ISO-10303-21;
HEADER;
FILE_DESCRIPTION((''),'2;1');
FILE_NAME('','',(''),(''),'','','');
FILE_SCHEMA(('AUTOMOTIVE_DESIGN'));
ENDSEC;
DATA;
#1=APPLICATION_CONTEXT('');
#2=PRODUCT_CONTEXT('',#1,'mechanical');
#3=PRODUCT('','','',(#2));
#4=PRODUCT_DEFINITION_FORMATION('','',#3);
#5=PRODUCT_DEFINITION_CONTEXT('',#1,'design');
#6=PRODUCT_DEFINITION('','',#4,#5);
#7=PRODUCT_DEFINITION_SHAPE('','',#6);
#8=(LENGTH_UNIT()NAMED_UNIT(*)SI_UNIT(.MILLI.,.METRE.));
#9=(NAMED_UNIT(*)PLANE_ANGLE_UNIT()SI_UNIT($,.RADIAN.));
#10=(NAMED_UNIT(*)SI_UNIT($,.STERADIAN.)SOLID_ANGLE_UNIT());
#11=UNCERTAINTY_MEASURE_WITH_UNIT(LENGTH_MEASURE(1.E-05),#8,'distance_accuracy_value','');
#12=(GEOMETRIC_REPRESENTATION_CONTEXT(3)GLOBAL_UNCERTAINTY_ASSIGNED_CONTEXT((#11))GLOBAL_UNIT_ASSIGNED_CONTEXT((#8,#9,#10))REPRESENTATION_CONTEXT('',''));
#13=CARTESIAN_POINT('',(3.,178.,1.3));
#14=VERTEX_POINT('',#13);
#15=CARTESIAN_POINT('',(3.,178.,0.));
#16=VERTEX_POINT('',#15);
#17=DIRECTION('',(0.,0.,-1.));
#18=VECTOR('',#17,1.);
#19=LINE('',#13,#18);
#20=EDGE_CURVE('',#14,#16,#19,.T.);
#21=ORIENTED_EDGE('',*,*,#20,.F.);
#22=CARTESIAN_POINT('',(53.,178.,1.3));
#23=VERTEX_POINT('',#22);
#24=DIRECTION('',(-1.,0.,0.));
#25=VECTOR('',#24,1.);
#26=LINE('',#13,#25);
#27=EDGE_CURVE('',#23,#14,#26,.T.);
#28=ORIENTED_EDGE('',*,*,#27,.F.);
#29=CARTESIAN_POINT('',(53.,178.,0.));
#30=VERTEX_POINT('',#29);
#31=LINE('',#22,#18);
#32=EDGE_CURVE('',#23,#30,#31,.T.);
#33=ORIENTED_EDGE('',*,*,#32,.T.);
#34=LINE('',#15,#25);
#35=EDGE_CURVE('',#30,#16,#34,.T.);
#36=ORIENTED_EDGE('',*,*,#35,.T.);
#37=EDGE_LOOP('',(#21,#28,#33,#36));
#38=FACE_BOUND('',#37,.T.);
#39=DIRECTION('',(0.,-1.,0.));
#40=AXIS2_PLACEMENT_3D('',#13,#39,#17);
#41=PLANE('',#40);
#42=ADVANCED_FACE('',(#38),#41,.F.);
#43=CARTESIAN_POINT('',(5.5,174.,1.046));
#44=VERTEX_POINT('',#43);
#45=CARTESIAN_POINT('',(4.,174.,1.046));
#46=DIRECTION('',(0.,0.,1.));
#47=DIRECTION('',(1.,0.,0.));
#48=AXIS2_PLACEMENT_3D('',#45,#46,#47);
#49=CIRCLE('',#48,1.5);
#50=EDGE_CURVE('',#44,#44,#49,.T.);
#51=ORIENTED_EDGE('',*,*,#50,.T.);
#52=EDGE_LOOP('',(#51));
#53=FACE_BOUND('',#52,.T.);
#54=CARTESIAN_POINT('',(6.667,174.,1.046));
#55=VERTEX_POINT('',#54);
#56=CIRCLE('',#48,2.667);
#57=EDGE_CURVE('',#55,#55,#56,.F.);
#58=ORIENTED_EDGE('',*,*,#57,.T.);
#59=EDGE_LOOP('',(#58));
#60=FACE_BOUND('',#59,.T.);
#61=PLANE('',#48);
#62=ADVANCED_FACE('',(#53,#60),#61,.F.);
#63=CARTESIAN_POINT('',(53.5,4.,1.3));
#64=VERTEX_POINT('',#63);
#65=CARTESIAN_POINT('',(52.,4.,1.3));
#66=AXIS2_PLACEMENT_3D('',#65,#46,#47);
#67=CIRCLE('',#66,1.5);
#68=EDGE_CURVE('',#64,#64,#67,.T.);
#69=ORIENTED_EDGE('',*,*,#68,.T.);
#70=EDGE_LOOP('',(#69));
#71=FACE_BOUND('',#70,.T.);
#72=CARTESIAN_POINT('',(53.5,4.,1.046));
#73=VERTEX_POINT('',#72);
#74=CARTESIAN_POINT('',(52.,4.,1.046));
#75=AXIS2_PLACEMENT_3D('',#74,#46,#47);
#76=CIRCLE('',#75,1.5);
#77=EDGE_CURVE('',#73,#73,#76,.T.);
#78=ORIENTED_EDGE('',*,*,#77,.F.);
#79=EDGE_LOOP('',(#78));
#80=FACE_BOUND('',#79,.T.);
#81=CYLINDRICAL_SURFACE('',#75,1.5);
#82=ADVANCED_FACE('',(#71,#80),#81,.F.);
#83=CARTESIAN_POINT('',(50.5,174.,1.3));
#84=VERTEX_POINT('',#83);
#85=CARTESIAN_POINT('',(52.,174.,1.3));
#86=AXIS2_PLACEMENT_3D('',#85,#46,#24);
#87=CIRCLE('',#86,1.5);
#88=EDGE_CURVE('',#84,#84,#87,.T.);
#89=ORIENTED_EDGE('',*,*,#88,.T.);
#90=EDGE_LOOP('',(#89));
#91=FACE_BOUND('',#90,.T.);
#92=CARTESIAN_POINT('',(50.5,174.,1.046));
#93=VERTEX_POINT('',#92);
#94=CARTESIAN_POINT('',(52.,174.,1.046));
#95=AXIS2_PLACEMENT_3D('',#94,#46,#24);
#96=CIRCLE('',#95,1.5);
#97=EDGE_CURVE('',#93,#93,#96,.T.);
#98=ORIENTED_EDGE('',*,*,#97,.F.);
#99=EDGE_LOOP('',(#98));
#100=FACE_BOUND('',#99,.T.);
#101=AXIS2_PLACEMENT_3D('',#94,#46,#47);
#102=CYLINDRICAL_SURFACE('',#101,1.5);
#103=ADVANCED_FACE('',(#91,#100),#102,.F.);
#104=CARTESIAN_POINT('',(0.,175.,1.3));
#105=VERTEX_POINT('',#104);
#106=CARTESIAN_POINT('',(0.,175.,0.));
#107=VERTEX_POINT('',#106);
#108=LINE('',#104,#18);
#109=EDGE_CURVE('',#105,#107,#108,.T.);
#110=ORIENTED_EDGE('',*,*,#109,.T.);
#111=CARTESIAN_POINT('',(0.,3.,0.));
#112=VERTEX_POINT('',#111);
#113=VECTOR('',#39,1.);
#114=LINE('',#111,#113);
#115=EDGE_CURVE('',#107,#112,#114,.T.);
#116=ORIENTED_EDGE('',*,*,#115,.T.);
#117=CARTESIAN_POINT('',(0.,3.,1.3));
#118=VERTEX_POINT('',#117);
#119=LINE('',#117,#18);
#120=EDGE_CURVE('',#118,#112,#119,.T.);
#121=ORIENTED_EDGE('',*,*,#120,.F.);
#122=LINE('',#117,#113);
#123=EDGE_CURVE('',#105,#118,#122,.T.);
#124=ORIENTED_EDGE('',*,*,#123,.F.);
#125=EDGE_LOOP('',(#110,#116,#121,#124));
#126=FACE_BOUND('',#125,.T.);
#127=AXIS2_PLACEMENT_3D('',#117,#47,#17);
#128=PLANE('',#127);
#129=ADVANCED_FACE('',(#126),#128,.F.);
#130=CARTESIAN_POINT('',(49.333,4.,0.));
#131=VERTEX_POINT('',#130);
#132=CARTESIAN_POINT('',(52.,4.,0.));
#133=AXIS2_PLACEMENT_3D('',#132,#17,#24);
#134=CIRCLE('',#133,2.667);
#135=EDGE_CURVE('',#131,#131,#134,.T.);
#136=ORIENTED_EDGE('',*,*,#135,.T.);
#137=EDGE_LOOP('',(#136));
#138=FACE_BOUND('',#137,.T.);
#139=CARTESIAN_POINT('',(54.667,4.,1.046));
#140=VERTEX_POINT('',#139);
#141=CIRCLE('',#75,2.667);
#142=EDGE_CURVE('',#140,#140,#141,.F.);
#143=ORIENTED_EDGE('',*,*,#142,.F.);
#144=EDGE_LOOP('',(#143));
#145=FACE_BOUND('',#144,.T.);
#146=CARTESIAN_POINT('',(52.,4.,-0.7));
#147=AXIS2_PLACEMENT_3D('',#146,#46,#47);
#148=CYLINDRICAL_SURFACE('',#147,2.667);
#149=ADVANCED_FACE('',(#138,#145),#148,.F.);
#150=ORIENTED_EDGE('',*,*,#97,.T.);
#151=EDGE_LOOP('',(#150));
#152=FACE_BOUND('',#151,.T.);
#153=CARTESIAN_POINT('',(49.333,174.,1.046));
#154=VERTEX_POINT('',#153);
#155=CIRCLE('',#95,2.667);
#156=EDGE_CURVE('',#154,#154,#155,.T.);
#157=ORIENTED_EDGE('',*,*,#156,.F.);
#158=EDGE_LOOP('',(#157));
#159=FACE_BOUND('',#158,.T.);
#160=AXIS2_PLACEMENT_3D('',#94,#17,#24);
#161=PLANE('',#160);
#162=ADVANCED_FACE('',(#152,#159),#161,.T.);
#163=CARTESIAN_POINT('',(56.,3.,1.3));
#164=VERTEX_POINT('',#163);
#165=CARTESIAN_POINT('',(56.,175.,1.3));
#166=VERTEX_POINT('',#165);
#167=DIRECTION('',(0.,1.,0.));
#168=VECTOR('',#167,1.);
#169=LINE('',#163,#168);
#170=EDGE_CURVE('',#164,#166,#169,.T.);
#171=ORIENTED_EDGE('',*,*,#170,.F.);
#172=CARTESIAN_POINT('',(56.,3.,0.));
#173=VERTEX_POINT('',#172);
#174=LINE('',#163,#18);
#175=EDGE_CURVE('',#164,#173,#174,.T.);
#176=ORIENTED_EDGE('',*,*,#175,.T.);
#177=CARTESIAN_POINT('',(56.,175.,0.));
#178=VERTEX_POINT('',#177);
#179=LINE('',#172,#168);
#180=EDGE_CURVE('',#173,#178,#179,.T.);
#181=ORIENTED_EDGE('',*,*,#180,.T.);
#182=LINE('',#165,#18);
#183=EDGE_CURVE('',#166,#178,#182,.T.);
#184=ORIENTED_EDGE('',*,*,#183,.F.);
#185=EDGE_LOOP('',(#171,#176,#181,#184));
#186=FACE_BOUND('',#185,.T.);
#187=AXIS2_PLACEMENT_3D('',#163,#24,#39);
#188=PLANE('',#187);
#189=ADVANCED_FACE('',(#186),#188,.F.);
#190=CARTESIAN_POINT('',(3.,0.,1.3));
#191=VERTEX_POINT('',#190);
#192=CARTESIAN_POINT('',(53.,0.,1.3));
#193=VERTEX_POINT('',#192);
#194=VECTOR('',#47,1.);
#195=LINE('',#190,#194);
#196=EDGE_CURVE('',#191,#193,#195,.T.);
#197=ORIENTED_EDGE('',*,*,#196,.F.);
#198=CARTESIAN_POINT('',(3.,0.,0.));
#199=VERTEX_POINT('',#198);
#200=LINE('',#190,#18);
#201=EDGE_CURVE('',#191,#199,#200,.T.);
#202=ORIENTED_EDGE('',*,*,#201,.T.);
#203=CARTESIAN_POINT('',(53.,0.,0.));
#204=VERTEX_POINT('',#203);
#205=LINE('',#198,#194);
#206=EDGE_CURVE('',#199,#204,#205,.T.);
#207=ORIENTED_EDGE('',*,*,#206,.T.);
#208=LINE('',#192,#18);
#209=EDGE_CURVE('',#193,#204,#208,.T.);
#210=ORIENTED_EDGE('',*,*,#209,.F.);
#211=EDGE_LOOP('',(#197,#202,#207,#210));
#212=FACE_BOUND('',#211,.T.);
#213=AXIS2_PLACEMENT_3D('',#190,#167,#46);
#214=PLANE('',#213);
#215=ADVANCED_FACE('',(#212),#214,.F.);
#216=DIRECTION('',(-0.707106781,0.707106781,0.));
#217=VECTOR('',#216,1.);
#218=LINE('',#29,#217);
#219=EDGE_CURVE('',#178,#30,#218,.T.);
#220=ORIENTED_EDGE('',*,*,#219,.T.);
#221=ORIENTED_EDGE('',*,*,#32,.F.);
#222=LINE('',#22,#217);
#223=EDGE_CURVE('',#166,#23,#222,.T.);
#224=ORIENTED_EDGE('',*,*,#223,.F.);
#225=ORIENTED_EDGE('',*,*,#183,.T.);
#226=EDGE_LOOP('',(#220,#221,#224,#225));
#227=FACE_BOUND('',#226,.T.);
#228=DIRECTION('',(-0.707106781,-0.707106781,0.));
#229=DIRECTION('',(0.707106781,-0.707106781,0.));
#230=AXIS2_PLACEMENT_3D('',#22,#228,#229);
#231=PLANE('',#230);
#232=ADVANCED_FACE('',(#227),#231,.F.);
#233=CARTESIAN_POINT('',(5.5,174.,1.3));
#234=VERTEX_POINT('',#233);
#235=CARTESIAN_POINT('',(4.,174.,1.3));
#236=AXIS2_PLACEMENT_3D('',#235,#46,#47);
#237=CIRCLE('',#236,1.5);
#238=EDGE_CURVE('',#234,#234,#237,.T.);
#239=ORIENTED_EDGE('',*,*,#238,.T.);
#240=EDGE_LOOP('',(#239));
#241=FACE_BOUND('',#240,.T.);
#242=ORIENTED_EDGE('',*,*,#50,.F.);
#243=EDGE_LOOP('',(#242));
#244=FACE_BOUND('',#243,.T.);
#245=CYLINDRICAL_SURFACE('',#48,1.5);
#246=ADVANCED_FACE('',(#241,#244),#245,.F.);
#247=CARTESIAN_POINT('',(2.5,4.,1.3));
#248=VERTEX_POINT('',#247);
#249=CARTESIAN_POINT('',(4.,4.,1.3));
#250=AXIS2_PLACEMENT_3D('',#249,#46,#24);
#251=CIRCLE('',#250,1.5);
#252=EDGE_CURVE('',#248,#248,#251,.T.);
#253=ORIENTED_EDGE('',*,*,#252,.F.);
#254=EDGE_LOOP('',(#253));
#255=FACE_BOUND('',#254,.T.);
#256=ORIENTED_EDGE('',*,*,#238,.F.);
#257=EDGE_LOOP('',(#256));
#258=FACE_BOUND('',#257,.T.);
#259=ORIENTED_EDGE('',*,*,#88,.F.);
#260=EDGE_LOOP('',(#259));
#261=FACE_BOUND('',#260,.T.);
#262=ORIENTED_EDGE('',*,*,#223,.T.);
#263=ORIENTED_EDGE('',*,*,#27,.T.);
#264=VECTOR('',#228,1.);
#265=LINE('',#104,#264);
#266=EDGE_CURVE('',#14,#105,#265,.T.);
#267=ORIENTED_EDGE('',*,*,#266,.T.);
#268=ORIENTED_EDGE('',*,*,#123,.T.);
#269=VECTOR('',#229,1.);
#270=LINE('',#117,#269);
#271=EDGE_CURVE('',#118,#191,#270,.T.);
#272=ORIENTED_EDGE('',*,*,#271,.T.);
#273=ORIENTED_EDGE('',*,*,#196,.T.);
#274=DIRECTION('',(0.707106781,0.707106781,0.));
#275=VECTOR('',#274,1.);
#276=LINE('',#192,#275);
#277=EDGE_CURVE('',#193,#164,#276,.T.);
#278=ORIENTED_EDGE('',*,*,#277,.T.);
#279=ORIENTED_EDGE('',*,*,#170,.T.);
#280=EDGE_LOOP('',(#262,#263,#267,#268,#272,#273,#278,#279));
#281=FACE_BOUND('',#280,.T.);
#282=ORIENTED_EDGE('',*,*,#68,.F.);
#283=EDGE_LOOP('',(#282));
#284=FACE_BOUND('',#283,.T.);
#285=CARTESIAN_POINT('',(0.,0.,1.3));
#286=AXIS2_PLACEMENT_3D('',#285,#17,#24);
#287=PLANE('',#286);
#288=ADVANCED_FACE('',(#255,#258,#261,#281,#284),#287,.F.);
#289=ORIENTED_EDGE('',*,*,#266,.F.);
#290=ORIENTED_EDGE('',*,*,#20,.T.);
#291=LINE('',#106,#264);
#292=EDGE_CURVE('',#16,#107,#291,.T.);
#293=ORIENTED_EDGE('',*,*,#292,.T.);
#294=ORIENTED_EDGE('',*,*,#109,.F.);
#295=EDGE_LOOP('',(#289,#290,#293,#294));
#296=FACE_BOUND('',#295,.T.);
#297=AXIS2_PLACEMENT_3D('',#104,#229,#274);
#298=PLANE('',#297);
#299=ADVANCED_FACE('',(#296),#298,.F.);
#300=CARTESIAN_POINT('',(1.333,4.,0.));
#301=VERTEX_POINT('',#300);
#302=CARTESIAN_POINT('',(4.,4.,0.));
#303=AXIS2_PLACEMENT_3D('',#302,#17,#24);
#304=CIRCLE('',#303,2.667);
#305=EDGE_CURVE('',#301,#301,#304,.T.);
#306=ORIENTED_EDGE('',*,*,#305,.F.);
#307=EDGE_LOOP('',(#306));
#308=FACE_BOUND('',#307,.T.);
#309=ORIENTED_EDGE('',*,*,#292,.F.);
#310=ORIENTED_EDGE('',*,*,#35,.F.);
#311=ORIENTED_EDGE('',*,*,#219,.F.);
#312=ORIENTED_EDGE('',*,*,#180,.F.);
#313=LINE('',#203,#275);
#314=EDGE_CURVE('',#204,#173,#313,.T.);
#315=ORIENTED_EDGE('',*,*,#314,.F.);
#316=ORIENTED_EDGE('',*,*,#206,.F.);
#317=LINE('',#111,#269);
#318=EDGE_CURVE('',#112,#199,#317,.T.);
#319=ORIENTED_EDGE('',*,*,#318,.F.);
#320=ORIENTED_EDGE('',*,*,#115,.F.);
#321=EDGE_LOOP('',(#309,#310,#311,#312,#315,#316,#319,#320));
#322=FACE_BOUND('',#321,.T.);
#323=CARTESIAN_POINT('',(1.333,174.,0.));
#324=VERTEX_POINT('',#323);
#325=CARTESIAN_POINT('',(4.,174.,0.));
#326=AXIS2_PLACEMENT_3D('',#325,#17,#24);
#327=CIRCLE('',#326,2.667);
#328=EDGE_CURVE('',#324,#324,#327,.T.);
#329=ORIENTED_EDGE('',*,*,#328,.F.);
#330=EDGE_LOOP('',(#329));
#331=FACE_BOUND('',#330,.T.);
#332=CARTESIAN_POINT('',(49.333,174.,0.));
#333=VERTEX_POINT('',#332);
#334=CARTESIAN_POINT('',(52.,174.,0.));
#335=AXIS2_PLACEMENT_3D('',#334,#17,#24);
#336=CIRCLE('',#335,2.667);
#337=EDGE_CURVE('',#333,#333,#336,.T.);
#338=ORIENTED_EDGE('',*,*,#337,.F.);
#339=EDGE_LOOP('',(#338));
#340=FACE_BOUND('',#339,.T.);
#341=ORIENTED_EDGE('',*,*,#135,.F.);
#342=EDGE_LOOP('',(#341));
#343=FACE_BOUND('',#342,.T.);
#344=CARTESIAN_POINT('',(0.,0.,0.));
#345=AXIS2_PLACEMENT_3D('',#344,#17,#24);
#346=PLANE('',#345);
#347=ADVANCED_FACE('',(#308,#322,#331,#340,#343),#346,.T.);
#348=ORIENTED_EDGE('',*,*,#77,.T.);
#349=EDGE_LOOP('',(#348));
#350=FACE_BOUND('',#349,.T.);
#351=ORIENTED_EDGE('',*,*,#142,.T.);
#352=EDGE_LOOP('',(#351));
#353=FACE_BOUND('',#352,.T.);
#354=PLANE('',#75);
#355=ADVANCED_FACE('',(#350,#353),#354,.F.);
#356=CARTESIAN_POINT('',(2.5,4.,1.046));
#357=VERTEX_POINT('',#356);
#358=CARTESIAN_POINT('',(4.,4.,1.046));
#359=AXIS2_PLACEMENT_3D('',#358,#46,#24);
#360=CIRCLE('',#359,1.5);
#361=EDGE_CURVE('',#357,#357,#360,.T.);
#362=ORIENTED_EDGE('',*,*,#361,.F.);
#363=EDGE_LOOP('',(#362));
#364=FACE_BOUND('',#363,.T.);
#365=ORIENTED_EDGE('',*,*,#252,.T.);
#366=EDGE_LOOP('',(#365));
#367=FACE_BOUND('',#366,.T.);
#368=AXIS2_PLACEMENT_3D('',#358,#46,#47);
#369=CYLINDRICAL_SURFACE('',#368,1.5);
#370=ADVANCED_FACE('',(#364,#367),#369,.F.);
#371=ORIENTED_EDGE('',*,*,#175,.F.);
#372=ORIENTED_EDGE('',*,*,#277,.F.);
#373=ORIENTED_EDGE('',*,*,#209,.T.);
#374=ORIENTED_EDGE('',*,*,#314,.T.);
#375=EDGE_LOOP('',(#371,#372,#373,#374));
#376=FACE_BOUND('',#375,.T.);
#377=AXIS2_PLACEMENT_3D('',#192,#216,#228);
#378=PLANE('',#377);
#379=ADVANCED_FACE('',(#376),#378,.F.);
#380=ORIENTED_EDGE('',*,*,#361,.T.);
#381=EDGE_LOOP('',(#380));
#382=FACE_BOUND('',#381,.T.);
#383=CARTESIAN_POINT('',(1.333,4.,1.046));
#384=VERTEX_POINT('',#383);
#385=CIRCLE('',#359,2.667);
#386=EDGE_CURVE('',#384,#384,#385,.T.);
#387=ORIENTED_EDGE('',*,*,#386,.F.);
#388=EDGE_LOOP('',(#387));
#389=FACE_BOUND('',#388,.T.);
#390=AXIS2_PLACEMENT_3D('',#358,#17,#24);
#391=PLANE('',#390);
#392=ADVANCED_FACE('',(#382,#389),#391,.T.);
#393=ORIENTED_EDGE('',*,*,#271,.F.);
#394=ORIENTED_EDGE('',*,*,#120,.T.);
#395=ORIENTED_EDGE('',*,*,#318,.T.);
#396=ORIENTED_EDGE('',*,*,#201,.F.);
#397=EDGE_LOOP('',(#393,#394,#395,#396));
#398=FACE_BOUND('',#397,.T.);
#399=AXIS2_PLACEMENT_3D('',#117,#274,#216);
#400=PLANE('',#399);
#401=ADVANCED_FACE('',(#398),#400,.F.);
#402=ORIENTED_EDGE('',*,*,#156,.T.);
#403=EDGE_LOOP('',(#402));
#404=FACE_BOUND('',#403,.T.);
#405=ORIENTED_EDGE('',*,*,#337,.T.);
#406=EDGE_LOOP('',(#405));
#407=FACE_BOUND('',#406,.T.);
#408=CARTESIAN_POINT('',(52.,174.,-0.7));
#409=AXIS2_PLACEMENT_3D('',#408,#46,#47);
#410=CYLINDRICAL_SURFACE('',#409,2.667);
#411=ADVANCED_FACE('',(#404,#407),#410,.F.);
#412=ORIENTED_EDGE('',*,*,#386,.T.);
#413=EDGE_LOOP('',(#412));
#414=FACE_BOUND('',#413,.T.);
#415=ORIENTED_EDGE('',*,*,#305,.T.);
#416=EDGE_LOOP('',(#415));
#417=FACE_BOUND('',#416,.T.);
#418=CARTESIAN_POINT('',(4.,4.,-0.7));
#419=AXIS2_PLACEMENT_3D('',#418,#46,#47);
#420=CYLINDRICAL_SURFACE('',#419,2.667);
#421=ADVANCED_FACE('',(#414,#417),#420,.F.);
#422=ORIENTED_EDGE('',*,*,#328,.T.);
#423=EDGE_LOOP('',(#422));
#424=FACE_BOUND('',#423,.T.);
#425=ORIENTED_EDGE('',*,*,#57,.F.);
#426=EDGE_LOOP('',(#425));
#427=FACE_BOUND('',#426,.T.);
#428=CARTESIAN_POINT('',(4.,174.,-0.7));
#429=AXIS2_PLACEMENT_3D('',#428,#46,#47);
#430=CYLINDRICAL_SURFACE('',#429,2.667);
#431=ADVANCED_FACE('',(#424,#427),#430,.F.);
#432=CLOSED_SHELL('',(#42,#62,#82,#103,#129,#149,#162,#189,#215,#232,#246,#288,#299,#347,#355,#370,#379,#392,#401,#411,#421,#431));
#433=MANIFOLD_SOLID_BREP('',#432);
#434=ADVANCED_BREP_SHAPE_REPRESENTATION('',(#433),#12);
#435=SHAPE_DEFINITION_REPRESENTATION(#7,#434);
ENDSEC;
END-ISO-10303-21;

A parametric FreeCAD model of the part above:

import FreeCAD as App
import Part
import Sketcher

doc = App.newDocument("Part")
body = doc.addObject("PartDesign::Body", "Body")

# Sketch on XY plane
sketch1 = body.newObject("Sketcher::SketchObject", "Sketch")
sketch1.AttachmentSupport = (doc.getObject("XY_Plane"), [""])
sketch1.MapMode = "FlatFace"
sketch1.addGeometry([
    Part.LineSegment(App.Vector(3, 178, 0), App.Vector(0, 175, 0)),  # 0
    Part.LineSegment(App.Vector(0, 175, 0), App.Vector(0, 3, 0)),  # 1
    Part.LineSegment(App.Vector(0, 3, 0), App.Vector(3, 0, 0)),  # 2
    Part.LineSegment(App.Vector(3, 0, 0), App.Vector(53, 0, 0)),  # 3
    Part.LineSegment(App.Vector(53, 0, 0), App.Vector(56, 3, 0)),  # 4
    Part.LineSegment(App.Vector(56, 3, 0), App.Vector(56, 175, 0)),  # 5
    Part.LineSegment(App.Vector(56, 175, 0), App.Vector(53, 178, 0)),  # 6
    Part.LineSegment(App.Vector(53, 178, 0), App.Vector(3, 178, 0)),  # 7
], False)
sketch1.addConstraint([
    Sketcher.Constraint("Coincident", 0, 2, 1, 1),
    Sketcher.Constraint("Coincident", 1, 2, 2, 1),
    Sketcher.Constraint("Coincident", 2, 2, 3, 1),
    Sketcher.Constraint("Coincident", 3, 2, 4, 1),
    Sketcher.Constraint("Coincident", 4, 2, 5, 1),
    Sketcher.Constraint("Coincident", 5, 2, 6, 1),
    Sketcher.Constraint("Coincident", 6, 2, 7, 1),
    Sketcher.Constraint("Coincident", 7, 2, 0, 1),
    Sketcher.Constraint("Vertical", 1),
    Sketcher.Constraint("Horizontal", 3),
    Sketcher.Constraint("Vertical", 5),
    Sketcher.Constraint("Horizontal", 7),
    Sketcher.Constraint("PointOnObject", 0, 2, -2),
    Sketcher.Constraint("PointOnObject", 2, 2, -1),
    Sketcher.Constraint("Perpendicular", 0, 2),
    Sketcher.Constraint("Perpendicular", 2, 4),
    Sketcher.Constraint("Perpendicular", 4, 6),
    Sketcher.Constraint("Horizontal", 1, 2, 4, 2),
    Sketcher.Constraint("Horizontal", 0, 2, 5, 2),
    Sketcher.Constraint("Vertical", 3, 2, 6, 2),
    Sketcher.Constraint("Vertical", 2, 2, 7, 2),
    Sketcher.Constraint("DistanceX", 3, 1, 3, 2, 50.0),
    Sketcher.Constraint("DistanceY", 1, 2, 1, 1, 172.0),
    Sketcher.Constraint("DistanceY", -1, 1, 0, 2, 175.0),
])
pad1 = body.newObject("PartDesign::Pad", "Pad")
pad1.Profile = sketch1
pad1.Length = 1.3

# Sketch on XY plane
sketch2 = body.newObject("Sketcher::SketchObject", "Sketch001")
sketch2.AttachmentSupport = (doc.getObject("XY_Plane"), [""])
sketch2.MapMode = "FlatFace"
sketch2.AttachmentOffset = App.Placement(App.Vector(0, 0, 1.3), App.Rotation())
sketch2.addGeometry([
    Part.Circle(App.Vector(4, 174, 0), App.Vector(0, 0, 1), 2.7),
    Part.Circle(App.Vector(52, 174, 0), App.Vector(0, 0, 1), 2.7),
    Part.Circle(App.Vector(52, 4, 0), App.Vector(0, 0, 1), 2.7),
    Part.Circle(App.Vector(4, 4, 0), App.Vector(0, 0, 1), 2.7),
], False)
sketch2.addConstraint([
    Sketcher.Constraint("Equal", 0, 1),
    Sketcher.Constraint("Equal", 1, 2),
    Sketcher.Constraint("Equal", 2, 3),
    Sketcher.Constraint("Horizontal", 0, 3, 1, 3),
    Sketcher.Constraint("Horizontal", 2, 3, 3, 3),
    Sketcher.Constraint("Vertical", 1, 3, 2, 3),
    Sketcher.Constraint("Vertical", 0, 3, 3, 3),
    Sketcher.Constraint("Diameter", 0, 5.334),
    Sketcher.Constraint("DistanceX", -1, 1, 0, 3, 4.0),
    Sketcher.Constraint("DistanceY", -1, 1, 0, 3, 174.0),
    Sketcher.Constraint("DistanceX", -1, 1, 1, 3, 52.0),
    Sketcher.Constraint("DistanceY", -1, 1, 2, 3, 4.0),
])
pocket1 = body.newObject("PartDesign::Pocket", "Pocket")
pocket1.Profile = sketch2
pocket1.Length = 2

# Sketch on XY plane
sketch3 = body.newObject("Sketcher::SketchObject", "Sketch002")
sketch3.AttachmentSupport = (doc.getObject("XY_Plane"), [""])
sketch3.MapMode = "FlatFace"
sketch3.AttachmentOffset = App.Placement(App.Vector(0, 0, 1.3), App.Rotation())
sketch3.addGeometry([
    Part.Circle(App.Vector(4, 174, 0), App.Vector(0, 0, 1), 2.7),  # 0
    Part.Circle(App.Vector(4, 174, 0), App.Vector(0, 0, 1), 1.5),  # 1
    Part.Circle(App.Vector(52, 174, 0), App.Vector(0, 0, 1), 2.7),  # 2
    Part.Circle(App.Vector(52, 174, 0), App.Vector(0, 0, 1), 1.5),  # 3
    Part.Circle(App.Vector(52, 4, 0), App.Vector(0, 0, 1), 2.7),  # 4
    Part.Circle(App.Vector(52, 4, 0), App.Vector(0, 0, 1), 1.5),  # 5
    Part.Circle(App.Vector(4, 4, 0), App.Vector(0, 0, 1), 2.7),  # 6
    Part.Circle(App.Vector(4, 4, 0), App.Vector(0, 0, 1), 1.5),  # 7
], False)
sketch3.addConstraint([
    Sketcher.Constraint("Coincident", 1, 3, 0, 3),
    Sketcher.Constraint("Coincident", 3, 3, 2, 3),
    Sketcher.Constraint("Coincident", 5, 3, 4, 3),
    Sketcher.Constraint("Coincident", 7, 3, 6, 3),
    Sketcher.Constraint("Equal", 0, 2),
    Sketcher.Constraint("Equal", 1, 3),
    Sketcher.Constraint("Equal", 2, 4),
    Sketcher.Constraint("Equal", 3, 5),
    Sketcher.Constraint("Equal", 4, 6),
    Sketcher.Constraint("Equal", 5, 7),
    Sketcher.Constraint("Horizontal", 1, 3, 2, 3),
    Sketcher.Constraint("Horizontal", 5, 3, 6, 3),
    Sketcher.Constraint("Vertical", 3, 3, 4, 3),
    Sketcher.Constraint("Vertical", 1, 3, 6, 3),
    Sketcher.Constraint("Diameter", 1, 3.0),
    Sketcher.Constraint("Diameter", 0, 5.334),
    Sketcher.Constraint("DistanceX", -1, 1, 0, 3, 4.0),
    Sketcher.Constraint("DistanceY", -1, 1, 0, 3, 174.0),
    Sketcher.Constraint("DistanceX", -1, 1, 2, 3, 52.0),
    Sketcher.Constraint("DistanceY", -1, 1, 4, 3, 4.0),
])
pad2 = body.newObject("PartDesign::Pad", "Pad001")
pad2.Profile = sketch3
pad2.Length = 0.254
pad2.Reversed = True

doc.recompute()
